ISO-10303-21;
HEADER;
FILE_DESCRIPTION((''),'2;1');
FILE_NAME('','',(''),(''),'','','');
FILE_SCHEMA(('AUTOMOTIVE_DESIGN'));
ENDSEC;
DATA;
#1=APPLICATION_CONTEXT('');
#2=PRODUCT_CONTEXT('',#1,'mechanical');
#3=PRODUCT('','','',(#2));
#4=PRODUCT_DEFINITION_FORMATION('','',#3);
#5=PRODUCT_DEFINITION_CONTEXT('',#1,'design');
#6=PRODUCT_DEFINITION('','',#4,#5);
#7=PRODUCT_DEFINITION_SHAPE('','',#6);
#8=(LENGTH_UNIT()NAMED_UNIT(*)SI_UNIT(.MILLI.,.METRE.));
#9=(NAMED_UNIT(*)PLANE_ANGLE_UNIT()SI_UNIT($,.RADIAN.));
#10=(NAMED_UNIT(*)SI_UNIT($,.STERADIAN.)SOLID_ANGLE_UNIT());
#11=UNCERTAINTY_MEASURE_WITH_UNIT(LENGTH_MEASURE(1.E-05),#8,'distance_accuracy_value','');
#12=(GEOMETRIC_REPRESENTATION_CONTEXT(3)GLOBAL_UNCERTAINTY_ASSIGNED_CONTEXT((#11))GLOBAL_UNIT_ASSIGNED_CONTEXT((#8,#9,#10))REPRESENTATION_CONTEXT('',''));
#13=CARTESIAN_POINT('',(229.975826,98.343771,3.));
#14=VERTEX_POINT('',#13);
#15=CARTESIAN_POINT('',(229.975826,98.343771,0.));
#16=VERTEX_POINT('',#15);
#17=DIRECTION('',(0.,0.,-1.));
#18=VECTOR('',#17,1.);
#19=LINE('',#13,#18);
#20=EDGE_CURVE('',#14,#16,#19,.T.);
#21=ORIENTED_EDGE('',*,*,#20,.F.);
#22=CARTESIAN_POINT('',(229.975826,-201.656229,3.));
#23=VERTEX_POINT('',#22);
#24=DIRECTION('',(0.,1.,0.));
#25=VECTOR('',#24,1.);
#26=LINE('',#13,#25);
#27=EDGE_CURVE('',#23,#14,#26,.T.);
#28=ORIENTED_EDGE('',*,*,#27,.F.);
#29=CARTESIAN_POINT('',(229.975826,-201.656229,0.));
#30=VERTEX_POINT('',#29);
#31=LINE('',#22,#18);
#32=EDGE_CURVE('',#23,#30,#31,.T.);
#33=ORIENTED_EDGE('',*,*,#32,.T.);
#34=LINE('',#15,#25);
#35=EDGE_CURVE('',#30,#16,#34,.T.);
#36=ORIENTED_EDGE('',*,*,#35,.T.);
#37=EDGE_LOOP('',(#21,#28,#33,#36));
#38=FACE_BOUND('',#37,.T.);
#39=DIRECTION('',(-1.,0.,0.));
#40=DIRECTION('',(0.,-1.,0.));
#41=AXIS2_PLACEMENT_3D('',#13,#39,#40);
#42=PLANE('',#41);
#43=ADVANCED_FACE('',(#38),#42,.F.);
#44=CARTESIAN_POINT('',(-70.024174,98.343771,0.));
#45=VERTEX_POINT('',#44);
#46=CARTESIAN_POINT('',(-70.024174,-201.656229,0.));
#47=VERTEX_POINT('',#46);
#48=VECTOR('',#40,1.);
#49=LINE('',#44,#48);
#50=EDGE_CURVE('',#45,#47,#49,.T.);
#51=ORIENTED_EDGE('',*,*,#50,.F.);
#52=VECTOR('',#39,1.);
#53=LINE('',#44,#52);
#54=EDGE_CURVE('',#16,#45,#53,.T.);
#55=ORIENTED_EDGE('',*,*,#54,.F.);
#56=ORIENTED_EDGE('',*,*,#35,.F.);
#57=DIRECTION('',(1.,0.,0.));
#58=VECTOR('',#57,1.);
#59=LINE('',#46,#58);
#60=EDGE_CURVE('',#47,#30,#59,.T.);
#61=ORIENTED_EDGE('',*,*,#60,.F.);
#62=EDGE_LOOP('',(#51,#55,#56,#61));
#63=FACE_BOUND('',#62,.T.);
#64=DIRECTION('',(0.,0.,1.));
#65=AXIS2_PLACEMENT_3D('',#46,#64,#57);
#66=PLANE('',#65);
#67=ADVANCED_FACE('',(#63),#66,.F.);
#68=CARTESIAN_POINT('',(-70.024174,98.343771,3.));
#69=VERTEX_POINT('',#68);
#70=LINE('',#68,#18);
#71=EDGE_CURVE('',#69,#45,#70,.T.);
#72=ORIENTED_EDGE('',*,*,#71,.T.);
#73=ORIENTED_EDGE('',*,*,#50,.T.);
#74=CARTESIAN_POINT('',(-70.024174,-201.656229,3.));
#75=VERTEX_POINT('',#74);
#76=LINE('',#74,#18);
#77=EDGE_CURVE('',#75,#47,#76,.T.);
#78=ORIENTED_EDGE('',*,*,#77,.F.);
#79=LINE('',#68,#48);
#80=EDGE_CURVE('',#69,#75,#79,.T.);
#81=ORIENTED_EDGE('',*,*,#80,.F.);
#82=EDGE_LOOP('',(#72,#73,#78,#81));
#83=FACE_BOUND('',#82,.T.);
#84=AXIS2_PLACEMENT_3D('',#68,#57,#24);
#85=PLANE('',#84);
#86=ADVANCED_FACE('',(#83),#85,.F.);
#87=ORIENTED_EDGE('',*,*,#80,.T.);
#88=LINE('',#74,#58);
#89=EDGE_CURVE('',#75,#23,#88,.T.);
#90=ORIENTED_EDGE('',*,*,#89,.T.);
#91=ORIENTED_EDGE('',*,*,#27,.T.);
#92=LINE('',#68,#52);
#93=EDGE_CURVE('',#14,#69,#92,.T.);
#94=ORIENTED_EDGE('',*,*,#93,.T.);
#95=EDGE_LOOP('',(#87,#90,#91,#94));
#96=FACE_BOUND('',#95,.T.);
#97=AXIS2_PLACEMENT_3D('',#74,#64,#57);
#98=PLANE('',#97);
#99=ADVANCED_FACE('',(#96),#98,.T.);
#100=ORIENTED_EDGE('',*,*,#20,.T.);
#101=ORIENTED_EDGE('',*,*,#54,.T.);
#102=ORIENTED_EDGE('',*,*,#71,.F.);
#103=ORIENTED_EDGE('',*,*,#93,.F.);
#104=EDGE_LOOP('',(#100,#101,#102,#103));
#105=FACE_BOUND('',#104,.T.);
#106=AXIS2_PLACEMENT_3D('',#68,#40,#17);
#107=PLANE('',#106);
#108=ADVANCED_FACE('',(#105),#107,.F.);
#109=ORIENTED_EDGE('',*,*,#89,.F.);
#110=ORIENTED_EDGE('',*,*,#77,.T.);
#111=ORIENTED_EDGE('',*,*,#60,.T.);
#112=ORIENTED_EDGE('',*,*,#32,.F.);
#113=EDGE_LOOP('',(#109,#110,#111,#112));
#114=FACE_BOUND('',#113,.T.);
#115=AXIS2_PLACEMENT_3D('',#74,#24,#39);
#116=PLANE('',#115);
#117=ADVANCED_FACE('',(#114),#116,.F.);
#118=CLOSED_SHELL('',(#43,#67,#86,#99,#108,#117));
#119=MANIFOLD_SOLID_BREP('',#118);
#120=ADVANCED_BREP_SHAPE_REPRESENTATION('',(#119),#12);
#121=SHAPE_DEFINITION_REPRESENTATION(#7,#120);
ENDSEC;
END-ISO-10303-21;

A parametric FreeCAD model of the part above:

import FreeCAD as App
import Part
import Sketcher


def add_polygon(sketch, points):
    """Adds a closed chain of lines whose ends are joined by coincident constraints."""
    first, n = sketch.GeometryCount, len(points)
    for a, b in zip(points, points[1:] + points[:1]):
        sketch.addGeometry(Part.LineSegment(App.Vector(*a, 0), App.Vector(*b, 0)), False)
    for i in range(n):
        sketch.addConstraint(Sketcher.Constraint("Coincident", first + i, 2, first + (i + 1) % n, 1))

doc = App.newDocument("Part")
body = doc.addObject("PartDesign::Body", "Body")

# Sketch on XY plane
sketch1 = body.newObject("Sketcher::SketchObject", "Sketch")
sketch1.AttachmentSupport = (doc.getObject("XY_Plane"), [""])
sketch1.MapMode = "FlatFace"
add_polygon(sketch1, [(-70, 98), (-70, -202), (230, -202), (230, 98)])  # lines 0-3
sketch1.addConstraint([
    Sketcher.Constraint("Vertical", 0),
    Sketcher.Constraint("Horizontal", 1),
    Sketcher.Constraint("Vertical", 2),
    Sketcher.Constraint("Horizontal", 3),
    Sketcher.Constraint("Equal", 3, 0),
    Sketcher.Constraint("DistanceX", 1, 1, 1, 2, 300.0),
    Sketcher.Constraint("DistanceY", 0, 2, -1, 1, 201.656229),
    Sketcher.Constraint("DistanceX", 0, 2, -1, 1, 70.024174),
])
pad1 = body.newObject("PartDesign::Pad", "Pad")
pad1.Profile = sketch1
pad1.Length = 3

doc.recompute()
